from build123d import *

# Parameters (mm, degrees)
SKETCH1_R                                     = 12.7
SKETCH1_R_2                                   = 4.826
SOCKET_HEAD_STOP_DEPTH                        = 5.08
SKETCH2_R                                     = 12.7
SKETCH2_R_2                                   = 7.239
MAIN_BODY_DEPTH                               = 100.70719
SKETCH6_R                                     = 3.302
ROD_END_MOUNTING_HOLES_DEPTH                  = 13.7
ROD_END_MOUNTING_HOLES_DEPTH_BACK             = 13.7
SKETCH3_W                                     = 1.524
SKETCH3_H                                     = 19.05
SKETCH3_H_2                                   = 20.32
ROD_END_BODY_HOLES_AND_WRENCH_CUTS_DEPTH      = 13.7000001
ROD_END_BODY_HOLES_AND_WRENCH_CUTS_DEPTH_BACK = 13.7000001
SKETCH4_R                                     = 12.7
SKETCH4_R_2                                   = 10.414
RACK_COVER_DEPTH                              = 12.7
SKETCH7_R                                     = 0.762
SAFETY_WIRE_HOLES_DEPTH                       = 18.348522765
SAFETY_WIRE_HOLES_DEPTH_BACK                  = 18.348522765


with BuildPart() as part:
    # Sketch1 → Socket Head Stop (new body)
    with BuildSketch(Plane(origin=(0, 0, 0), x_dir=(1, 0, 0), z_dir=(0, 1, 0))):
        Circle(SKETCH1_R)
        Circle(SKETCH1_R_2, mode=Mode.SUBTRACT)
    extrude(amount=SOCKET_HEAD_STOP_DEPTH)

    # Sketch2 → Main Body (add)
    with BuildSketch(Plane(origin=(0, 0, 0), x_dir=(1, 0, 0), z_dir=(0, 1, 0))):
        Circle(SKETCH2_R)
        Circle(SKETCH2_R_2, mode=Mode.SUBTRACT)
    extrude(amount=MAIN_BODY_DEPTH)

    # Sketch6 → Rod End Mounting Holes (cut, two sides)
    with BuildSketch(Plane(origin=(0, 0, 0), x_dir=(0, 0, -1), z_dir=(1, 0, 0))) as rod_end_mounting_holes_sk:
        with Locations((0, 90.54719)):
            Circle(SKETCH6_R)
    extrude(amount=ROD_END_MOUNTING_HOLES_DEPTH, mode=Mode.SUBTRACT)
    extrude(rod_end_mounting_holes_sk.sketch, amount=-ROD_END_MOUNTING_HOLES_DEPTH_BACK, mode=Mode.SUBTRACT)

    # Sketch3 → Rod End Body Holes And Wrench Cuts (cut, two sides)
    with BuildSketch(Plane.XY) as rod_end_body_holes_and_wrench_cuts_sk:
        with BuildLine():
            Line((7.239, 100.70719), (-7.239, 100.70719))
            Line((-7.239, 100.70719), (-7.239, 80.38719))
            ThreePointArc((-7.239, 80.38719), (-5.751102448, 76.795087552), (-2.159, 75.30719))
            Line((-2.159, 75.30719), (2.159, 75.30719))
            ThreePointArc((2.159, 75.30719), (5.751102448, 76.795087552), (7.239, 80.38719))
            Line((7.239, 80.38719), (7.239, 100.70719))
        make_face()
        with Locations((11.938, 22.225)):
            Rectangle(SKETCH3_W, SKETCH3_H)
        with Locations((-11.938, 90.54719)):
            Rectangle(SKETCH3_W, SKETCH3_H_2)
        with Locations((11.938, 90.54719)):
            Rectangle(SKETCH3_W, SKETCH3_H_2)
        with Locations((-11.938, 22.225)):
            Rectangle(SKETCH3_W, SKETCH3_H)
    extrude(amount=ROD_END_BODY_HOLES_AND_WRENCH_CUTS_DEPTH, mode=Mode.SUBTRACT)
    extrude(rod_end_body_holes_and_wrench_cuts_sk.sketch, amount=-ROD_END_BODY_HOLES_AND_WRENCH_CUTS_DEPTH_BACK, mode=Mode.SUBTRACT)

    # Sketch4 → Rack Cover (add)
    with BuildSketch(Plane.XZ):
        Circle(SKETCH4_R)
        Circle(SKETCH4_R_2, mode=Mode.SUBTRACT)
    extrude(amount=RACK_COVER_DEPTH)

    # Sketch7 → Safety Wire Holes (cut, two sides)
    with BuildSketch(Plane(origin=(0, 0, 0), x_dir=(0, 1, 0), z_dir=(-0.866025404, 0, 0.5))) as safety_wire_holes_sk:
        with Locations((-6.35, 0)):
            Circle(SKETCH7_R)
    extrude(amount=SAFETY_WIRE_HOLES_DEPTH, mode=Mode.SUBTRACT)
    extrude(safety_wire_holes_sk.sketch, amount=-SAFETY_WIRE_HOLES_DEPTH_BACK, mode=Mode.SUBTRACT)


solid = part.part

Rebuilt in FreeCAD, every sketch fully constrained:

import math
import FreeCAD as App
import Part
import Sketcher

V = App.Vector
Q = App.Units.Quantity

doc = App.newDocument("Part")
body = doc.addObject("PartDesign::Body", "Body")

sketch1 = doc.addObject("Sketcher::SketchObject", "Sketch")
body.addObject(sketch1)
sketch1.AttachmentSupport = (doc.XZ_Plane, [""])
sketch1.MapMode = "FlatFace"
sketch1.addGeometry(Part.Circle(V(0, 0, 0), V(0, 0, 1), 12.7), False)
sketch1.addGeometry(Part.Circle(V(0, 0, 0), V(0, 0, 1), 4.8), False)
sketch1.addConstraint(Sketcher.Constraint("Coincident", 0, 3, -1, 1))
sketch1.addConstraint(Sketcher.Constraint("Coincident", 1, 3, -1, 1))
sketch1.addConstraint(Sketcher.Constraint("Diameter", 0, Q("1 in")))
sketch1.addConstraint(Sketcher.Constraint("Diameter", 1, Q("0.38 in")))
pad1 = doc.addObject("PartDesign::Pad", "Pad")
body.addObject(pad1)
pad1.Profile = sketch1
pad1.Length = Q("0.2 in")
pad1.Reversed = True

sketch2 = doc.addObject("Sketcher::SketchObject", "Sketch001")
body.addObject(sketch2)
sketch2.AttachmentSupport = (doc.XZ_Plane, [""])
sketch2.MapMode = "FlatFace"
sketch2.addGeometry(Part.Circle(V(0, 0, 0), V(0, 0, 1), 13), False)
sketch2.addGeometry(Part.Circle(V(0, 0, 0), V(0, 0, 1), 7), False)
sketch2.addConstraint(Sketcher.Constraint("Coincident", 0, 3, -1, 1))
sketch2.addConstraint(Sketcher.Constraint("Coincident", 1, 3, -1, 1))
sketch2.addConstraint(Sketcher.Constraint("Diameter", 0, Q("1 in")))
sketch2.addConstraint(Sketcher.Constraint("Diameter", 1, Q("0.57 in")))
pad2 = doc.addObject("PartDesign::Pad", "Pad001")
body.addObject(pad2)
pad2.Profile = sketch2
pad2.Length = 100.70719
pad2.Reversed = True

sketch3 = doc.addObject("Sketcher::SketchObject", "Sketch002")
body.addObject(sketch3)
sketch3.AttachmentSupport = (doc.YZ_Plane, [""])
sketch3.MapMode = "FlatFace"
sketch3.addGeometry(Part.Circle(V(90.5, 0, 0), V(0, 0, 1), 3.3), False)
sketch3.addConstraint(Sketcher.Constraint("PointOnObject", 0, 3, -1))
sketch3.addConstraint(Sketcher.Constraint("Diameter", 0, Q("0.26 in")))
sketch3.addConstraint(Sketcher.Constraint("DistanceX", -1, 1, 0, 3, Q("90.54719 mm")))
pocket1 = doc.addObject("PartDesign::Pocket", "Pocket")
body.addObject(pocket1)
pocket1.Profile = sketch3
pocket1.Type = "ThroughAll"
pocket1.Midplane = True

sketch4 = doc.addObject("Sketcher::SketchObject", "Sketch003")
body.addObject(sketch4)
sketch4.AttachmentSupport = (doc.XY_Plane, [""])
sketch4.MapMode = "FlatFace"
sketch4.addGeometry(Part.LineSegment(V(7.2, 100.7, 0), V(-7.2, 100.7, 0)), False)
sketch4.addGeometry(Part.LineSegment(V(-7.2, 100.7, 0), V(-7.2, 80.4, 0)), False)
sketch4.addGeometry(Part.ArcOfCircle(Part.Circle(V(-2.2, 80.4, 0), V(0, 0, 1), 5.1), math.radians(-180), math.radians(-90)), False)
sketch4.addGeometry(Part.LineSegment(V(-2.2, 75.3, 0), V(2.2, 75.3, 0)), False)
sketch4.addGeometry(Part.ArcOfCircle(Part.Circle(V(2.2, 80.4, 0), V(0, 0, 1), 5.1), math.radians(-90), math.radians(0)), False)
sketch4.addGeometry(Part.LineSegment(V(7.2, 80.4, 0), V(7.2, 100.7, 0)), False)
sketch4.addGeometry(Part.LineSegment(V(11.2, 31.8, 0), V(11.2, 12.7, 0)), False)
sketch4.addGeometry(Part.LineSegment(V(11.2, 12.7, 0), V(12.7, 12.7, 0)), False)
sketch4.addGeometry(Part.LineSegment(V(12.7, 12.7, 0), V(12.7, 31.8, 0)), False)
sketch4.addGeometry(Part.LineSegment(V(12.7, 31.8, 0), V(11.2, 31.8, 0)), False)
sketch4.addGeometry(Part.LineSegment(V(-12.7, 100.7, 0), V(-12.7, 80.4, 0)), False)
sketch4.addGeometry(Part.LineSegment(V(-12.7, 80.4, 0), V(-11.2, 80.4, 0)), False)
sketch4.addGeometry(Part.LineSegment(V(-11.2, 80.4, 0), V(-11.2, 100.7, 0)), False)
sketch4.addGeometry(Part.LineSegment(V(-11.2, 100.7, 0), V(-12.7, 100.7, 0)), False)
sketch4.addGeometry(Part.LineSegment(V(11.2, 100.7, 0), V(11.2, 80.4, 0)), False)
sketch4.addGeometry(Part.LineSegment(V(11.2, 80.4, 0), V(12.7, 80.4, 0)), False)
sketch4.addGeometry(Part.LineSegment(V(12.7, 80.4, 0), V(12.7, 100.7, 0)), False)
sketch4.addGeometry(Part.LineSegment(V(12.7, 100.7, 0), V(11.2, 100.7, 0)), False)
sketch4.addGeometry(Part.LineSegment(V(-12.7, 31.8, 0), V(-12.7, 12.7, 0)), False)
sketch4.addGeometry(Part.LineSegment(V(-12.7, 12.7, 0), V(-11.2, 12.7, 0)), False)
sketch4.addGeometry(Part.LineSegment(V(-11.2, 12.7, 0), V(-11.2, 31.8, 0)), False)
sketch4.addGeometry(Part.LineSegment(V(-11.2, 31.8, 0), V(-12.7, 31.8, 0)), False)
sketch4.addConstraint(Sketcher.Constraint("Coincident", 0, 2, 1, 1))
sketch4.addConstraint(Sketcher.Constraint("Tangent", 1, 2, 2, 1))
sketch4.addConstraint(Sketcher.Constraint("Tangent", 2, 2, 3, 1))
sketch4.addConstraint(Sketcher.Constraint("Tangent", 3, 2, 4, 1))
sketch4.addConstraint(Sketcher.Constraint("Tangent", 4, 2, 5, 1))
sketch4.addConstraint(Sketcher.Constraint("Coincident", 5, 2, 0, 1))
sketch4.addConstraint(Sketcher.Constraint("Coincident", 6, 2, 7, 1))
sketch4.addConstraint(Sketcher.Constraint("Coincident", 7, 2, 8, 1))
sketch4.addConstraint(Sketcher.Constraint("Coincident", 8, 2, 9, 1))
sketch4.addConstraint(Sketcher.Constraint("Coincident", 9, 2, 6, 1))
sketch4.addConstraint(Sketcher.Constraint("Coincident", 10, 2, 11, 1))
sketch4.addConstraint(Sketcher.Constraint("Coincident", 11, 2, 12, 1))
sketch4.addConstraint(Sketcher.Constraint("Coincident", 12, 2, 13, 1))
sketch4.addConstraint(Sketcher.Constraint("Coincident", 13, 2, 10, 1))
sketch4.addConstraint(Sketcher.Constraint("Coincident", 14, 2, 15, 1))
sketch4.addConstraint(Sketcher.Constraint("Coincident", 15, 2, 16, 1))
sketch4.addConstraint(Sketcher.Constraint("Coincident", 16, 2, 17, 1))
sketch4.addConstraint(Sketcher.Constraint("Coincident", 17, 2, 14, 1))
sketch4.addConstraint(Sketcher.Constraint("Coincident", 18, 2, 19, 1))
sketch4.addConstraint(Sketcher.Constraint("Coincident", 19, 2, 20, 1))
sketch4.addConstraint(Sketcher.Constraint("Coincident", 20, 2, 21, 1))
sketch4.addConstraint(Sketcher.Constraint("Coincident", 21, 2, 18, 1))
sketch4.addConstraint(Sketcher.Constraint("Horizontal", 0))
sketch4.addConstraint(Sketcher.Constraint("Vertical", 1))
sketch4.addConstraint(Sketcher.Constraint("Horizontal", 3))
sketch4.addConstraint(Sketcher.Constraint("Vertical", 5))
sketch4.addConstraint(Sketcher.Constraint("Vertical", 6))
sketch4.addConstraint(Sketcher.Constraint("Horizontal", 7))
sketch4.addConstraint(Sketcher.Constraint("Vertical", 8))
sketch4.addConstraint(Sketcher.Constraint("Horizontal", 9))
sketch4.addConstraint(Sketcher.Constraint("Vertical", 10))
sketch4.addConstraint(Sketcher.Constraint("Horizontal", 11))
sketch4.addConstraint(Sketcher.Constraint("Vertical", 12))
sketch4.addConstraint(Sketcher.Constraint("Horizontal", 13))
sketch4.addConstraint(Sketcher.Constraint("Vertical", 14))
sketch4.addConstraint(Sketcher.Constraint("Horizontal", 15))
sketch4.addConstraint(Sketcher.Constraint("Vertical", 16))
sketch4.addConstraint(Sketcher.Constraint("Horizontal", 17))
sketch4.addConstraint(Sketcher.Constraint("Vertical", 18))
sketch4.addConstraint(Sketcher.Constraint("Horizontal", 19))
sketch4.addConstraint(Sketcher.Constraint("Vertical", 20))
sketch4.addConstraint(Sketcher.Constraint("Horizontal", 21))
sketch4.addConstraint(Sketcher.Constraint("Equal", 2, 4))
sketch4.addConstraint(Sketcher.Constraint("Symmetric", 11, 2, 14, 2, -2))
sketch4.addConstraint(Sketcher.Constraint("Symmetric", 13, 2, 16, 2, -2))
sketch4.addConstraint(Sketcher.Constraint("Symmetric", 7, 2, 18, 2, -2))
sketch4.addConstraint(Sketcher.Constraint("Symmetric", 9, 2, 20, 2, -2))
sketch4.addConstraint(Sketcher.Constraint("Horizontal", 4, 2, 10, 2))
sketch4.addConstraint(Sketcher.Constraint("Horizontal", 5, 2, 12, 2))
sketch4.addConstraint(Sketcher.Constraint("Vertical", 9, 2, 14, 2))
sketch4.addConstraint(Sketcher.Constraint("Vertical", 8, 2, 15, 2))
sketch4.addConstraint(Sketcher.Constraint("Radius", 2, Q("0.2 in")))
sketch4.addConstraint(Sketcher.Constraint("DistanceY", 1, 2, 1, 1, Q("0.8 in")))
sketch4.addConstraint(Sketcher.Constraint("DistanceX", 18, 2, 7, 2, Q("1 in")))
sketch4.addConstraint(Sketcher.Constraint("DistanceX", 0, 2, 0, 1, Q("0.57 in")))
sketch4.addConstraint(Sketcher.Constraint("DistanceX", 7, 1, 7, 2, Q("0.06 in")))
sketch4.addConstraint(Sketcher.Constraint("DistanceY", 6, 2, 6, 1, Q("0.75 in")))
sketch4.addConstraint(Sketcher.Constraint("DistanceY", -1, 1, 6, 2, Q("0.5 in")))
sketch4.addConstraint(Sketcher.Constraint("DistanceX", 2, 3, -1, 1, Q("0.085 in")))
sketch4.addConstraint(Sketcher.Constraint("DistanceY", -1, 1, 2, 3, Q("80.38719 mm")))
pocket2 = doc.addObject("PartDesign::Pocket", "Pocket001")
body.addObject(pocket2)
pocket2.Profile = sketch4
pocket2.Type = "ThroughAll"
pocket2.Midplane = True

sketch5 = doc.addObject("Sketcher::SketchObject", "Sketch004")
body.addObject(sketch5)
sketch5.AttachmentSupport = (doc.XZ_Plane, [""])
sketch5.MapMode = "FlatFace"
sketch5.addGeometry(Part.Circle(V(0, 0, 0), V(0, 0, 1), 13), False)
sketch5.addGeometry(Part.Circle(V(0, 0, 0), V(0, 0, 1), 10), False)
sketch5.addConstraint(Sketcher.Constraint("Coincident", 0, 3, -1, 1))
sketch5.addConstraint(Sketcher.Constraint("Coincident", 1, 3, -1, 1))
sketch5.addConstraint(Sketcher.Constraint("Diameter", 0, Q("1 in")))
sketch5.addConstraint(Sketcher.Constraint("Diameter", 1, Q("0.82 in")))
pad3 = doc.addObject("PartDesign::Pad", "Pad002")
body.addObject(pad3)
pad3.Profile = sketch5
pad3.Length = Q("0.5 in")

sketch6 = doc.addObject("Sketcher::SketchObject", "Sketch005")
body.addObject(sketch6)
sketch6.Placement = App.Placement(V(0, 0, 0), App.Rotation(V(0, 1, 0), V(-0.5, 0, -0.866025404), V(-0.866025404, 0, 0.5), "ZXY"))
sketch6.addGeometry(Part.Circle(V(-6.3, 0, 0), V(0, 0, 1), 0.8), False)
sketch6.addConstraint(Sketcher.Constraint("PointOnObject", 0, 3, -1))
sketch6.addConstraint(Sketcher.Constraint("Diameter", 0, Q("0.06 in")))
sketch6.addConstraint(Sketcher.Constraint("DistanceX", 0, 3, -1, 1, Q("0.25 in")))
pocket3 = doc.addObject("PartDesign::Pocket", "Pocket002")
body.addObject(pocket3)
pocket3.Profile = sketch6
pocket3.Type = "ThroughAll"
pocket3.Midplane = True

doc.recompute()
